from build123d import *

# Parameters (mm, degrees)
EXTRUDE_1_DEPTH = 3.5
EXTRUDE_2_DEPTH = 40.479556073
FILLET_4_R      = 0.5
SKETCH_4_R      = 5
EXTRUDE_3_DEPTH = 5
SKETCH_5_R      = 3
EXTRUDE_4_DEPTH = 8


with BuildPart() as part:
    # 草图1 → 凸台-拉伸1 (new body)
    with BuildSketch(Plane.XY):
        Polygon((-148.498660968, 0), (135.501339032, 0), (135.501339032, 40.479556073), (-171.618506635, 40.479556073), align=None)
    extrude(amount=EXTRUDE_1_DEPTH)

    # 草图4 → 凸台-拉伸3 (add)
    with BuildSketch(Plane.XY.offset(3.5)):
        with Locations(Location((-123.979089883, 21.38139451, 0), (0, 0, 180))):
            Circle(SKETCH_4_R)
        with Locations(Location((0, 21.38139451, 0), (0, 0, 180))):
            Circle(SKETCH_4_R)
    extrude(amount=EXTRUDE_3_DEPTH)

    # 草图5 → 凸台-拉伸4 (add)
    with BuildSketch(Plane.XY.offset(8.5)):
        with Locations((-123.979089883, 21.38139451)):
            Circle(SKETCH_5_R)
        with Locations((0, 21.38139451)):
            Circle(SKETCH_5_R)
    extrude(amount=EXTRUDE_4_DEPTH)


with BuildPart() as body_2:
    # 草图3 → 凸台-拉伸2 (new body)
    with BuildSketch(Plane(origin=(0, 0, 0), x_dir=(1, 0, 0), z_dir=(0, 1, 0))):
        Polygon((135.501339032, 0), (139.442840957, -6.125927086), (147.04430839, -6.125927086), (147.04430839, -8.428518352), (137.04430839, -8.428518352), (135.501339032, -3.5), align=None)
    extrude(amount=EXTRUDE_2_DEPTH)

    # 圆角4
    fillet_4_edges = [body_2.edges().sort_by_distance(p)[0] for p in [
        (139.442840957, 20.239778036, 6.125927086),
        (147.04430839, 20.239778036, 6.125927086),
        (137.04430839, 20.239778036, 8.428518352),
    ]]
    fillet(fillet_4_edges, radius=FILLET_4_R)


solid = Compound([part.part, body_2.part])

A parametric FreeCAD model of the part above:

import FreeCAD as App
import Part
import Sketcher


def edges_at(feature, points):
    """Names of the edges that pass closest to the given points."""
    edges = feature.Shape.Edges
    near = lambda p: min(range(len(edges)), key=lambda i: edges[i].distToShape(Part.Vertex(*p))[0])
    return sorted({f"Edge{near(p) + 1}" for p in points})


def add_polygon(sketch, points):
    """Adds a closed chain of lines whose ends are joined by coincident constraints."""
    first, n = sketch.GeometryCount, len(points)
    for a, b in zip(points, points[1:] + points[:1]):
        sketch.addGeometry(Part.LineSegment(App.Vector(*a, 0), App.Vector(*b, 0)), False)
    for i in range(n):
        sketch.addConstraint(Sketcher.Constraint("Coincident", first + i, 2, first + (i + 1) % n, 1))

doc = App.newDocument("Part")
body = doc.addObject("PartDesign::Body", "Body")

# Sketch on XY plane
sketch1 = body.newObject("Sketcher::SketchObject", "Sketch")
sketch1.AttachmentSupport = (doc.getObject("XY_Plane"), [""])
sketch1.MapMode = "FlatFace"
add_polygon(sketch1, [(-148, 0), (136, 0), (136, 40), (-172, 40)])  # lines 0-3
sketch1.addConstraint([
    Sketcher.Constraint("Horizontal", 0),
    Sketcher.Constraint("Vertical", 1),
    Sketcher.Constraint("Horizontal", 2),
    Sketcher.Constraint("PointOnObject", 0, 2, -1),
    Sketcher.Constraint("DistanceX", 0, 1, 0, 2, 284.0),
    Sketcher.Constraint("DistanceX", 2, 2, 2, 1, 307.119846),
    Sketcher.Constraint("DistanceY", 1, 1, 1, 2, 40.479556),
    Sketcher.Constraint("DistanceX", -1, 1, 0, 2, 135.501339),
])
pad1 = body.newObject("PartDesign::Pad", "Pad")
pad1.Profile = sketch1
pad1.Length = 3.5

# Sketch on XY plane
sketch2 = body.newObject("Sketcher::SketchObject", "Sketch001")
sketch2.AttachmentSupport = (doc.getObject("XY_Plane"), [""])
sketch2.MapMode = "FlatFace"
sketch2.AttachmentOffset = App.Placement(App.Vector(0, 0, 3.5), App.Rotation())
sketch2.addGeometry([
    Part.Circle(App.Vector(-124, 21, 0), App.Vector(0, 0, 1), 5),
    Part.Circle(App.Vector(0, 21, 0), App.Vector(0, 0, 1), 5),
], False)
sketch2.addConstraint([
    Sketcher.Constraint("Equal", 0, 1),
    Sketcher.Constraint("PointOnObject", 1, 3, -2),
    Sketcher.Constraint("Horizontal", 0, 3, 1, 3),
    Sketcher.Constraint("Diameter", 0, 10.0),
    Sketcher.Constraint("DistanceX", 0, 3, -1, 1, 123.97909),
    Sketcher.Constraint("DistanceY", -1, 1, 0, 3, 21.381395),
])
pad2 = body.newObject("PartDesign::Pad", "Pad001")
pad2.Profile = sketch2
pad2.Length = 5

# Sketch on XY plane
sketch3 = body.newObject("Sketcher::SketchObject", "Sketch002")
sketch3.AttachmentSupport = (doc.getObject("XY_Plane"), [""])
sketch3.MapMode = "FlatFace"
sketch3.AttachmentOffset = App.Placement(App.Vector(0, 0, 8.5), App.Rotation())
sketch3.addGeometry([
    Part.Circle(App.Vector(-124, 21.4, 0), App.Vector(0, 0, 1), 3),
    Part.Circle(App.Vector(0, 21.4, 0), App.Vector(0, 0, 1), 3),
], False)
sketch3.addConstraint([
    Sketcher.Constraint("Equal", 0, 1),
    Sketcher.Constraint("PointOnObject", 1, 3, -2),
    Sketcher.Constraint("Horizontal", 0, 3, 1, 3),
    Sketcher.Constraint("Diameter", 0, 6.0),
    Sketcher.Constraint("DistanceX", 0, 3, -1, 1, 123.97909),
    Sketcher.Constraint("DistanceY", -1, 1, 0, 3, 21.381395),
])
pad3 = body.newObject("PartDesign::Pad", "Pad002")
pad3.Profile = sketch3
pad3.Length = 8
body2 = doc.addObject("PartDesign::Body", "Body001")

# Sketch on XZ plane
sketch4 = body2.newObject("Sketcher::SketchObject", "Sketch003")
sketch4.AttachmentSupport = (doc.getObject("XZ_Plane001"), [""])
sketch4.MapMode = "FlatFace"
add_polygon(sketch4, [(139.4, 6.1), (135.5, 0), (135.5, 3.5), (137, 8.4), (147, 8.4), (147, 6.1)])  # lines 0-5
sketch4.addConstraint([
    Sketcher.Constraint("Vertical", 1),
    Sketcher.Constraint("Horizontal", 3),
    Sketcher.Constraint("Vertical", 4),
    Sketcher.Constraint("Horizontal", 5),
    Sketcher.Constraint("PointOnObject", 0, 2, -1),
    Sketcher.Constraint("DistanceX", 3, 1, 3, 2, 10.0),
    Sketcher.Constraint("DistanceY", 1, 1, 1, 2, 3.5),
    Sketcher.Constraint("Distance", 2, 5.164402),
    Sketcher.Constraint("DistanceY", 4, 2, 4, 1, 2.302591),
    Sketcher.Constraint("DistanceX", 1, 2, 5, 2, 3.941502),
    Sketcher.Constraint("DistanceX", 5, 2, 5, 1, 7.601467),
    Sketcher.Constraint("DistanceX", -1, 1, 0, 2, 135.501339),
])
pad4 = body2.newObject("PartDesign::Pad", "Pad003")
pad4.Profile = sketch4
pad4.Length = 40.479556
pad4.Reversed = True
doc.recompute()

fillet = body2.newObject("PartDesign::Fillet", "Fillet")
fillet.Base = (pad4, edges_at(pad4, [(139.443, 20.24, 6.126), (147.044, 20.24, 6.126), (137.044, 20.24, 8.429)]))
fillet.Radius = 0.5

doc.recompute()
